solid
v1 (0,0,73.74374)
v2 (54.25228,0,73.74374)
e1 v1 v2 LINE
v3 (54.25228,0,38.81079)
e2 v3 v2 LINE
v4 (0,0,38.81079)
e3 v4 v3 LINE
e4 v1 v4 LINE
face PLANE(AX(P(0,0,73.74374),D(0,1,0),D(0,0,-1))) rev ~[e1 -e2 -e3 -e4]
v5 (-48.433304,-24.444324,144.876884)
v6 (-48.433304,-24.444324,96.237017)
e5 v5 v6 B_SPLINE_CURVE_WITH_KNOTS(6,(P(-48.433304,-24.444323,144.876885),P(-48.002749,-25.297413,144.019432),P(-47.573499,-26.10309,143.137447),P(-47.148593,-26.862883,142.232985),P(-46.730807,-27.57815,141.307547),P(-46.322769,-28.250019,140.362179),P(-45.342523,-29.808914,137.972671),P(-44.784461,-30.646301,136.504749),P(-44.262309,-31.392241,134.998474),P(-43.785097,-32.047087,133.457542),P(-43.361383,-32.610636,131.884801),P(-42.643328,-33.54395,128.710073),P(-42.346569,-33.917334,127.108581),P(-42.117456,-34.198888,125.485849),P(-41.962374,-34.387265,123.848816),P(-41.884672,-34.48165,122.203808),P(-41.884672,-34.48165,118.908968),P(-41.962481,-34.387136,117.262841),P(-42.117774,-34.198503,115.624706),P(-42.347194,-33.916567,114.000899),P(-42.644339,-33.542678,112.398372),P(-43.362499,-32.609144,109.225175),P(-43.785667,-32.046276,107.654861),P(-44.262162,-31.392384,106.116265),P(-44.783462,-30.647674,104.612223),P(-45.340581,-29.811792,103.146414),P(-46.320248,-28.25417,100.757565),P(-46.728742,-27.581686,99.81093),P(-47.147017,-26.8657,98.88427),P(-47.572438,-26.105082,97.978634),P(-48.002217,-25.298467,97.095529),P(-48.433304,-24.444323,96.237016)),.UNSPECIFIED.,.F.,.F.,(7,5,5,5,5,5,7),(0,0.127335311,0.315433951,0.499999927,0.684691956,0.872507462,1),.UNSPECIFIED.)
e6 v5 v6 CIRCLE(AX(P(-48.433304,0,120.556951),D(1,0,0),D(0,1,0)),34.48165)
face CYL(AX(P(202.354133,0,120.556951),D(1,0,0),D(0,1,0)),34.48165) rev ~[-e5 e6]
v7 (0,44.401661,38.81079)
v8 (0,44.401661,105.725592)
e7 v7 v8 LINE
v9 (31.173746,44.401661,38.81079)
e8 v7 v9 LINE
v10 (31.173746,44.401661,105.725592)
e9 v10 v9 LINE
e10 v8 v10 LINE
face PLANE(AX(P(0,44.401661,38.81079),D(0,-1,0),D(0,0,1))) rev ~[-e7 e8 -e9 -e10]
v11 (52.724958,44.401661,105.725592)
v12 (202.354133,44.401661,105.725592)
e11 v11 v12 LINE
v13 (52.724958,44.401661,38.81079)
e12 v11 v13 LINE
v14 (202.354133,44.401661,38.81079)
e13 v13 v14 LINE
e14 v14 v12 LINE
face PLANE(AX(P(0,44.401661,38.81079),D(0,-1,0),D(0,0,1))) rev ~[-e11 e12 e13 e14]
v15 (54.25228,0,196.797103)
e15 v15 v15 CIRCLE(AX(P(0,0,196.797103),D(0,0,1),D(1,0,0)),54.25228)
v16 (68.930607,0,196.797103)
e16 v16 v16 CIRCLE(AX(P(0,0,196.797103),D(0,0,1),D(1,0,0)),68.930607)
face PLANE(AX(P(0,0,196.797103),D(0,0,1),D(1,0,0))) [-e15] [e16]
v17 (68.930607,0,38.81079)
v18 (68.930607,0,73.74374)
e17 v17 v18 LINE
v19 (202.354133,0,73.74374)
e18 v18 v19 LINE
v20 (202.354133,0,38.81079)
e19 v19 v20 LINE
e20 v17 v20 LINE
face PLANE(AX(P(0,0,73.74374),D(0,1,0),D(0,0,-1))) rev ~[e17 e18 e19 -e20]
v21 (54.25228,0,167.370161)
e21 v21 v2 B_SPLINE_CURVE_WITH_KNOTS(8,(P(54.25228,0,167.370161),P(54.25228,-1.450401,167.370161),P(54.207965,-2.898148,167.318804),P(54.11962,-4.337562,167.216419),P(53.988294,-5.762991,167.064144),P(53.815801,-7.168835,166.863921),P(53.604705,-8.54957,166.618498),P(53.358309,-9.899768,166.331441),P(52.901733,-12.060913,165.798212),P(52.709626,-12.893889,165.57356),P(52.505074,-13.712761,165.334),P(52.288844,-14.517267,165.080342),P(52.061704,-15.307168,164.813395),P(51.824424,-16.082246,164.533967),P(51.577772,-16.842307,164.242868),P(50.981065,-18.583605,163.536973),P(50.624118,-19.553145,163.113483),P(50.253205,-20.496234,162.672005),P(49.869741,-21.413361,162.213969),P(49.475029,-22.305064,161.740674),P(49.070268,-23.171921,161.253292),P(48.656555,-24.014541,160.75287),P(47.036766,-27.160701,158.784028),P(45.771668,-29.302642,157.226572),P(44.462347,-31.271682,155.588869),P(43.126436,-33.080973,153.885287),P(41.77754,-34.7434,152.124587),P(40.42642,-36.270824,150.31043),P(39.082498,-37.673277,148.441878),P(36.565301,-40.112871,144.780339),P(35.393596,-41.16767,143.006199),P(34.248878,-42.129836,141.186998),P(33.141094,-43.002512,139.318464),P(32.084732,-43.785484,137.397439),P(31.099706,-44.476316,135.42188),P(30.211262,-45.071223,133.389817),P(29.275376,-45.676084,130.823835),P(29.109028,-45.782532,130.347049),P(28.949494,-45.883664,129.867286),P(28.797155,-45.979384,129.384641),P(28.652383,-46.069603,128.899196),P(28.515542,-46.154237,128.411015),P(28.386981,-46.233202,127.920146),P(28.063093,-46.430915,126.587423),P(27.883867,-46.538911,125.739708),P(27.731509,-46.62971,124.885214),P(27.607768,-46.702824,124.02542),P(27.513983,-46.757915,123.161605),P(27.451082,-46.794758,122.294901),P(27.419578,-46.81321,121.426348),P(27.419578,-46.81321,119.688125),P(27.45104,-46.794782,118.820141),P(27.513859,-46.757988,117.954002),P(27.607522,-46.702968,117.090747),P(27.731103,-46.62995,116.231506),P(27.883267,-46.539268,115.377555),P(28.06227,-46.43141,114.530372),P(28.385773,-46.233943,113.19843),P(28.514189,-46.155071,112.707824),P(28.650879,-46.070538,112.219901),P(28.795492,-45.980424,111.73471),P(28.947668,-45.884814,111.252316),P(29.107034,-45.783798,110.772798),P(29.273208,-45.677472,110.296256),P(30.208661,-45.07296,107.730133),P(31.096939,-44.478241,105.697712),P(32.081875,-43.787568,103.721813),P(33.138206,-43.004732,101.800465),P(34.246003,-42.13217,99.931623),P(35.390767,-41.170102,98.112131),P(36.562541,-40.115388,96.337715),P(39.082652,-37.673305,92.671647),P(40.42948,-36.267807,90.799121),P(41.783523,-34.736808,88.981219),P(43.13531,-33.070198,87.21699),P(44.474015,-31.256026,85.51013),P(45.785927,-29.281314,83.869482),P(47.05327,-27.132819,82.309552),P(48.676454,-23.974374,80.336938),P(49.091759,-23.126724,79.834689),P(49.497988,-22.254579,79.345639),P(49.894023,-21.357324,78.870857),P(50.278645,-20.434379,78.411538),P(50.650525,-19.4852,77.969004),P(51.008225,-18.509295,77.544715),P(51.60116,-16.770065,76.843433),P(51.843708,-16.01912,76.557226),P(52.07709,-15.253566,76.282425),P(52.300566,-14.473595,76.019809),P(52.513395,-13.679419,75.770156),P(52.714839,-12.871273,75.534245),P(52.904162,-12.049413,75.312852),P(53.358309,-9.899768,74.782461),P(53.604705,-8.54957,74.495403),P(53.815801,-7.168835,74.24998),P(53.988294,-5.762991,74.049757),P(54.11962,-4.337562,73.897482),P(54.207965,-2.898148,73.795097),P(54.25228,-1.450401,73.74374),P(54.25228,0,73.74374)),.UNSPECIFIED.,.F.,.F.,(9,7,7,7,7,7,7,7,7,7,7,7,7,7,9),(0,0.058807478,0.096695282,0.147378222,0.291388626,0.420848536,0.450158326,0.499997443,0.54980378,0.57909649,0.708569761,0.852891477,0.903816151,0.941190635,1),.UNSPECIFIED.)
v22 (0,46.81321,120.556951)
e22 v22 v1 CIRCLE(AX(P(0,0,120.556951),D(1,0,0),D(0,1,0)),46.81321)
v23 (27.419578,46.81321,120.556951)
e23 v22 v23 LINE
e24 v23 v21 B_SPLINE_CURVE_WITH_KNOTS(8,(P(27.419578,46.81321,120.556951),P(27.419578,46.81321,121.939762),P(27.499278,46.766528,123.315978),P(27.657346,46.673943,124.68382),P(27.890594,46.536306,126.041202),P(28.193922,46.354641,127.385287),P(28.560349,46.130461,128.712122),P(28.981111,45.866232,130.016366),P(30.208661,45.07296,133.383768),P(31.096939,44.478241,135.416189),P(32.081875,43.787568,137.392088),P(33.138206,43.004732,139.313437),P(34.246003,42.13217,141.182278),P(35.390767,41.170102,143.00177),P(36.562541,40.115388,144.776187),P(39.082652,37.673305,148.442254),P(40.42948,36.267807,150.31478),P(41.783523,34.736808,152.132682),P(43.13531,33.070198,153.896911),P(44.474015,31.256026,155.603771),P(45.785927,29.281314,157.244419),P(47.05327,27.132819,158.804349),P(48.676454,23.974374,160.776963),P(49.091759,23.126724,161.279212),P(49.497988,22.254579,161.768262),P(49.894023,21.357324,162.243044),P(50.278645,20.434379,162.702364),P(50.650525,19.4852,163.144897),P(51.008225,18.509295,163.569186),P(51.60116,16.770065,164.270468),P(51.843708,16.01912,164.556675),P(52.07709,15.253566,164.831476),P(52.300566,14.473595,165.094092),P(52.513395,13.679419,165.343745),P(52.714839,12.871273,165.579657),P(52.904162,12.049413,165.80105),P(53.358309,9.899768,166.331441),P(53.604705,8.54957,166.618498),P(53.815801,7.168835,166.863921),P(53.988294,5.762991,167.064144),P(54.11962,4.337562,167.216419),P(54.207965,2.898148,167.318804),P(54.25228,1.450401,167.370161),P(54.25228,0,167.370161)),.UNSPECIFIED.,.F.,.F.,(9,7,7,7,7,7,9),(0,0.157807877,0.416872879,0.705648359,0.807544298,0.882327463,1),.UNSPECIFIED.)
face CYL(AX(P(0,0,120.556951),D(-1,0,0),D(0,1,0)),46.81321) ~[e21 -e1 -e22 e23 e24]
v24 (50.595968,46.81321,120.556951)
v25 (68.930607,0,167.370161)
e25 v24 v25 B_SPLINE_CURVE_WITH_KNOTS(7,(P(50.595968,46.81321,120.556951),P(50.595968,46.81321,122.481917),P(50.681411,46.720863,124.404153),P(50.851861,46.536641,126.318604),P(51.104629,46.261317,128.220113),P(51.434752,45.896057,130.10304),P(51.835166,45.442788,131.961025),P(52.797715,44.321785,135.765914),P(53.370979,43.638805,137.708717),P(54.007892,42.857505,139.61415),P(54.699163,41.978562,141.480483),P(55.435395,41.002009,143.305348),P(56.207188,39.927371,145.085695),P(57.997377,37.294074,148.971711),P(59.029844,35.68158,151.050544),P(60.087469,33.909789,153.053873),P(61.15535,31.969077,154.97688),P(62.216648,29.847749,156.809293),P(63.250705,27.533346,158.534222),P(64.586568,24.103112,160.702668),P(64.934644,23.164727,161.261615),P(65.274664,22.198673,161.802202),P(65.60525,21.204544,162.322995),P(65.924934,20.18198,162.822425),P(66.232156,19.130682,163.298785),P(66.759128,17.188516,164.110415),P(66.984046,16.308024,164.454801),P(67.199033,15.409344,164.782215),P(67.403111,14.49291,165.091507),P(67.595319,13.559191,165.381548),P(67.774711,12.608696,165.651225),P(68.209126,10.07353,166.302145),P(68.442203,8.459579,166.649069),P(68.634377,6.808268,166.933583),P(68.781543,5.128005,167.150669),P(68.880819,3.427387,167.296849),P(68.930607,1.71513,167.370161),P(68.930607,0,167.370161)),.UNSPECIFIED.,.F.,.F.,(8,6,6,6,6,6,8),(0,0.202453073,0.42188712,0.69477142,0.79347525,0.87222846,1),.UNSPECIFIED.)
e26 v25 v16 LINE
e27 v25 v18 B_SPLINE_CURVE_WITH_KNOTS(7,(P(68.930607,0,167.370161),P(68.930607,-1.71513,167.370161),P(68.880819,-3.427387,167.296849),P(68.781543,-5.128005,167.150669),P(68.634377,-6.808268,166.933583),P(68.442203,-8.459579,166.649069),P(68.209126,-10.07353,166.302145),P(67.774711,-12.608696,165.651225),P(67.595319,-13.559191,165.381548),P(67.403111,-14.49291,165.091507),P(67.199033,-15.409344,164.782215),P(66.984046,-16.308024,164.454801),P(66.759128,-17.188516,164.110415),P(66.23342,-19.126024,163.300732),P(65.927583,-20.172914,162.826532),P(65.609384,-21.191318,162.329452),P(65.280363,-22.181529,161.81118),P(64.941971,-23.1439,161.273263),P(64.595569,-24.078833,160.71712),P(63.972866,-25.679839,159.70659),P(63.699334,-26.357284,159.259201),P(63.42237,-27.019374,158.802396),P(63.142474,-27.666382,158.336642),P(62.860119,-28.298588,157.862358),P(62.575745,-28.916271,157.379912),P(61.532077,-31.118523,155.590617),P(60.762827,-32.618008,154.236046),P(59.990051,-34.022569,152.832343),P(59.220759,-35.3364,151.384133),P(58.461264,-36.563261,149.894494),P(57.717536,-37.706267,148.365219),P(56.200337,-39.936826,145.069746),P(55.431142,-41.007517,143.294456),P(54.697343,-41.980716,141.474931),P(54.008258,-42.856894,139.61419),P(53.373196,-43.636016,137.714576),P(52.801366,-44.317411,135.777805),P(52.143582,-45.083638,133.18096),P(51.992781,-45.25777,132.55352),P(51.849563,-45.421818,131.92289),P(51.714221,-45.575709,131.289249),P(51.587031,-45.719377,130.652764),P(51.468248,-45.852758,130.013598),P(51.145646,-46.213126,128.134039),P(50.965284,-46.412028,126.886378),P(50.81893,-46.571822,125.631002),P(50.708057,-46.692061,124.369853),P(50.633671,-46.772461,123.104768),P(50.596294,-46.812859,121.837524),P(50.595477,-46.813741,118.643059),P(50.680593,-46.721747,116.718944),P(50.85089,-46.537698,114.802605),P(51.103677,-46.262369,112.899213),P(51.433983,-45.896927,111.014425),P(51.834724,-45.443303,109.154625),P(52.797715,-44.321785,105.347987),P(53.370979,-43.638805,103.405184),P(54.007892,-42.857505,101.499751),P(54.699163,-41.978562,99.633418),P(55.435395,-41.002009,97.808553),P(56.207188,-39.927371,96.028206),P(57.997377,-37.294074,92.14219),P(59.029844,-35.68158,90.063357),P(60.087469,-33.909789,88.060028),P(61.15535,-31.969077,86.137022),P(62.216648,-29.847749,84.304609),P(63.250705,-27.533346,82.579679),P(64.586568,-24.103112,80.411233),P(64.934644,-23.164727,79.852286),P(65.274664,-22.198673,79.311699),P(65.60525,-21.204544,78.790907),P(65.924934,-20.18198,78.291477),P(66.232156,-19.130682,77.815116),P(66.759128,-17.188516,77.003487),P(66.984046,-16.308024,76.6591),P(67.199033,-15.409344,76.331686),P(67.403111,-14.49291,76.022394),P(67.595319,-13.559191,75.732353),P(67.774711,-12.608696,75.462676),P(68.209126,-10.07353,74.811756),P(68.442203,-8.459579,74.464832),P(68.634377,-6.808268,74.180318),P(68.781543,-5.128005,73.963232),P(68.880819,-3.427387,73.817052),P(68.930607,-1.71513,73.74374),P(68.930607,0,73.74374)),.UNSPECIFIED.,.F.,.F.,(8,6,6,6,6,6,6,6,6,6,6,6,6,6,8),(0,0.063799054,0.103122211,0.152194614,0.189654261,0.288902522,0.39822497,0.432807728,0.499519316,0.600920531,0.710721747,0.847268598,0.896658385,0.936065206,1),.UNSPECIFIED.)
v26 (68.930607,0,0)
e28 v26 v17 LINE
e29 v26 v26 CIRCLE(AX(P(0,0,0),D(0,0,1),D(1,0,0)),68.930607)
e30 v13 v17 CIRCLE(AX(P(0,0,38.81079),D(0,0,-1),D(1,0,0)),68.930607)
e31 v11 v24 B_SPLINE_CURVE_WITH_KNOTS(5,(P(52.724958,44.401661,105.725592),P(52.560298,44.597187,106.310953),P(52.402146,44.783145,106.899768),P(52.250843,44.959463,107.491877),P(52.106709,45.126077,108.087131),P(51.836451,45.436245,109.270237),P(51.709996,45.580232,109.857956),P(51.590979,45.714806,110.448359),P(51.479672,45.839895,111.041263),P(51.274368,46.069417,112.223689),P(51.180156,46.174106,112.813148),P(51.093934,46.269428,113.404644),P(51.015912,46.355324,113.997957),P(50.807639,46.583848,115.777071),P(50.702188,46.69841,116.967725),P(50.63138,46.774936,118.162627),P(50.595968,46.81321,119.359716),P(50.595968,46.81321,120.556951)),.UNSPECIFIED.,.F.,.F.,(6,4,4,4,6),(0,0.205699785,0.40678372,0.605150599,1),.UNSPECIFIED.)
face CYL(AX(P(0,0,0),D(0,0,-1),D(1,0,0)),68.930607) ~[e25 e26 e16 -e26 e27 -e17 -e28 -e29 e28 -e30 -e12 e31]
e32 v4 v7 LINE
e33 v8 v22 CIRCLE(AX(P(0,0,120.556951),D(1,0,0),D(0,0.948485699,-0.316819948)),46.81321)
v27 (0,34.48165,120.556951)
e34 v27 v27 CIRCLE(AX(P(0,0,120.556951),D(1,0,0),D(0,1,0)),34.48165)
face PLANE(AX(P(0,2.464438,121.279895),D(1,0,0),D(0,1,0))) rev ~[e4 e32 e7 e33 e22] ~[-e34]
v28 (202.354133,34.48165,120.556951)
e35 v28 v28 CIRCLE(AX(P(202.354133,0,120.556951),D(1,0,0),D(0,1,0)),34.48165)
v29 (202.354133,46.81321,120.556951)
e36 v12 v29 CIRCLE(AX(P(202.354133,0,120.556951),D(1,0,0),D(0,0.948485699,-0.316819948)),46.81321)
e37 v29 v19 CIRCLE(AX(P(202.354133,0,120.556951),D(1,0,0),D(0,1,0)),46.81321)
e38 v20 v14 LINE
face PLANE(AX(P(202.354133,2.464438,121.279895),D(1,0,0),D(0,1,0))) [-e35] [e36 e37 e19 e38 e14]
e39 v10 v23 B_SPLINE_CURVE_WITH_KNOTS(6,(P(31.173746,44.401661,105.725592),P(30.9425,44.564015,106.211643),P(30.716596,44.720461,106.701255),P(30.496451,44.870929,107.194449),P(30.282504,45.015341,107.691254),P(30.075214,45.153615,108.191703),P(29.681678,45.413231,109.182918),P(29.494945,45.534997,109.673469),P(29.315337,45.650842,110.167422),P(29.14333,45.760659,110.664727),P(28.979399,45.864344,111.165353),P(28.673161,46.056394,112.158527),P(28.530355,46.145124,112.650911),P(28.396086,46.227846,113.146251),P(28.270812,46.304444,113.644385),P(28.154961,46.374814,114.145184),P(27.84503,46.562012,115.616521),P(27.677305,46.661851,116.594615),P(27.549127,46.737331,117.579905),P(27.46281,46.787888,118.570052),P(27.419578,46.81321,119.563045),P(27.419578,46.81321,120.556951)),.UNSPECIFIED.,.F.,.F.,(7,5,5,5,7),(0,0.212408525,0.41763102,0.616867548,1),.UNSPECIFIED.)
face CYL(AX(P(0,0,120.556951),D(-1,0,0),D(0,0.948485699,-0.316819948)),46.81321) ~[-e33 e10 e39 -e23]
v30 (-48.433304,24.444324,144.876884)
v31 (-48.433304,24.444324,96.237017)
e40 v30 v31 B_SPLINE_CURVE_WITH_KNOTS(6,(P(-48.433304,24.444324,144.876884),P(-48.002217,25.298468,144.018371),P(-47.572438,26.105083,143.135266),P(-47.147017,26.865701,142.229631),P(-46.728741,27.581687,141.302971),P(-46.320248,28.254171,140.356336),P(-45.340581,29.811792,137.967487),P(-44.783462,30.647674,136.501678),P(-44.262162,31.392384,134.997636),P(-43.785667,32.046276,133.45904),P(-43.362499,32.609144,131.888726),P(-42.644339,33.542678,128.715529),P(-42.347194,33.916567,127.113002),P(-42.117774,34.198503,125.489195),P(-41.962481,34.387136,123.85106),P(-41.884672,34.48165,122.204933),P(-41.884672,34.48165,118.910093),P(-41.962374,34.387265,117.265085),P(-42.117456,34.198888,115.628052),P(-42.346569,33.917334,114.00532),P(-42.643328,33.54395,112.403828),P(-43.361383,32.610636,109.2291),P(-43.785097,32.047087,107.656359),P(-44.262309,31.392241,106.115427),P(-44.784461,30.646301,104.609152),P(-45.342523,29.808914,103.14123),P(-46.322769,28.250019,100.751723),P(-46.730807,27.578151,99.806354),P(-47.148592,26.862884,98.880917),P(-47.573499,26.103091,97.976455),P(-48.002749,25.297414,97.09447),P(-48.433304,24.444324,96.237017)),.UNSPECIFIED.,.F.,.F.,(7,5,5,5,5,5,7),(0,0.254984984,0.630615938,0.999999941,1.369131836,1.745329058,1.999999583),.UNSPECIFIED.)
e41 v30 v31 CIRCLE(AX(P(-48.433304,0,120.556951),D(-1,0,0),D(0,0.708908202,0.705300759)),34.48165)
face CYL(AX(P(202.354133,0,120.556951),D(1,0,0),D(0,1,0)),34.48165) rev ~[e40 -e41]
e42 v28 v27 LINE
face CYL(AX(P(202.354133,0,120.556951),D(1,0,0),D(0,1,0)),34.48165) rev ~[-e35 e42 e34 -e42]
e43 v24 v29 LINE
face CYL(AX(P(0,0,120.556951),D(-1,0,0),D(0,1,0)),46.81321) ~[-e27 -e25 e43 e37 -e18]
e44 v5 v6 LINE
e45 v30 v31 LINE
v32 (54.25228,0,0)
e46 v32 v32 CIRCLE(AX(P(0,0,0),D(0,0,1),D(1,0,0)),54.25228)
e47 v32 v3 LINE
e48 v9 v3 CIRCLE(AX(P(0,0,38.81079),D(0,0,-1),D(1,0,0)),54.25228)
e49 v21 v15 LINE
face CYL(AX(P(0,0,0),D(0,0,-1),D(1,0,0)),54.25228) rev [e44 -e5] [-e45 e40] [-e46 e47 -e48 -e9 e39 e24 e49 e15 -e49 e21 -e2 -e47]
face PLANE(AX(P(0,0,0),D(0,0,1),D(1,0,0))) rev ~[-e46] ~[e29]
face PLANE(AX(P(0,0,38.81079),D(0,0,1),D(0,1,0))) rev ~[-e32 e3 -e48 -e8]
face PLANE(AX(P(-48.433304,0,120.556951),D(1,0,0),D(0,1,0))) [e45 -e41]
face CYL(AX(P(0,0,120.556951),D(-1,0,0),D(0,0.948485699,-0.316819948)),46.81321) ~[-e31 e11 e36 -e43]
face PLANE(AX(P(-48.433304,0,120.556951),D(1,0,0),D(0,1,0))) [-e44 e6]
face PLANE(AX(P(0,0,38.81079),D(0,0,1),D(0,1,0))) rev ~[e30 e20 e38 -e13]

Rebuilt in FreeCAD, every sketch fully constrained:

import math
import FreeCAD as App
import Part
import Sketcher
Q = App.Units.Quantity

doc = App.newDocument("Part")
params = doc.addObject("Spreadsheet::Sheet", "Params")
for row, (alias, value) in enumerate([
    ("pad1_length", "196.797103 mm"),
    ("pad2_length", "202.354133 mm"),
    ("pocket1_length", "250.787437 mm"),
], start=1):
    params.set(f"A{row}", alias)
    params.set(f"B{row}", "=" + value)
    params.setAlias(f"B{row}", alias)

body = doc.addObject("PartDesign::Body", "Body")

# Sketch on XY plane
sketch1 = body.newObject("Sketcher::SketchObject", "Sketch")
sketch1.AttachmentSupport = (doc.getObject("XY_Plane"), [""])
sketch1.MapMode = "FlatFace"
sketch1.addGeometry([
    Part.Circle(App.Vector(0, 0, 0), App.Vector(0, 0, 1), 69),
    Part.Circle(App.Vector(0, 0, 0), App.Vector(0, 0, 1), 54),
], False)
sketch1.addConstraint([
    Sketcher.Constraint("Coincident", 0, 3, -1, 1),
    Sketcher.Constraint("Coincident", 1, 3, -1, 1),
    Sketcher.Constraint("Diameter", 1, Q("108.50456 mm")),
    Sketcher.Constraint("Diameter", 0, Q("137.861215 mm")),
])
pad1 = body.newObject("PartDesign::Pad", "Pad")
pad1.Profile = sketch1
pad1.setExpression("Length", "Params.pad1_length")

# Sketch on YZ plane
sketch2 = body.newObject("Sketcher::SketchObject", "Sketch001")
sketch2.AttachmentSupport = (doc.getObject("YZ_Plane"), [""])
sketch2.MapMode = "FlatFace"
sketch2.addGeometry([
    Part.ArcOfCircle(Part.Circle(App.Vector(0, 121, 0), App.Vector(0, 0, 1), 47), math.radians(-18.47), math.radians(0)),  # 0
    Part.ArcOfCircle(Part.Circle(App.Vector(0, 121, 0), App.Vector(0, 0, 1), 47), math.radians(0), math.radians(270)),  # 1
    Part.LineSegment(App.Vector(0, 74, 0), App.Vector(0, 39, 0)),  # 2
    Part.LineSegment(App.Vector(0, 39, 0), App.Vector(44, 39, 0)),  # 3
    Part.LineSegment(App.Vector(44, 39, 0), App.Vector(44, 106, 0)),  # 4
], False)
sketch2.addConstraint([
    Sketcher.Constraint("Tangent", 0, 2, 1, 1),
    Sketcher.Constraint("Coincident", 1, 2, 2, 1),
    Sketcher.Constraint("Coincident", 2, 2, 3, 1),
    Sketcher.Constraint("Coincident", 3, 2, 4, 1),
    Sketcher.Constraint("Coincident", 4, 2, 0, 1),
    Sketcher.Constraint("Vertical", 2),
    Sketcher.Constraint("Horizontal", 3),
    Sketcher.Constraint("Vertical", 4),
    Sketcher.Constraint("Equal", 0, 1),
    Sketcher.Constraint("PointOnObject", 0, 3, -2),
    Sketcher.Constraint("PointOnObject", 1, 2, -2),
    Sketcher.Constraint("Horizontal", 1, 3, 0, 2),
    Sketcher.Constraint("Radius", 0, Q("46.81321 mm")),
    Sketcher.Constraint("DistanceX", 3, 1, 3, 2, Q("44.401661 mm")),
    Sketcher.Constraint("DistanceY", 2, 2, 2, 1, Q("34.932951 mm")),
    Sketcher.Constraint("DistanceY", -1, 1, 0, 3, Q("120.556951 mm")),
])
pad2 = body.newObject("PartDesign::Pad", "Pad001")
pad2.Profile = sketch2
pad2.setExpression("Length", "Params.pad2_length")

# Sketch on YZ plane
sketch3 = body.newObject("Sketcher::SketchObject", "Sketch002")
sketch3.AttachmentSupport = (doc.getObject("YZ_Plane"), [""])
sketch3.MapMode = "FlatFace"
sketch3.AttachmentOffset = App.Placement(App.Vector(0, 0, 202.354133), App.Rotation())
sketch3.addGeometry(Part.Circle(App.Vector(0, 121, 0), App.Vector(0, 0, 1), 34), False)
sketch3.addConstraint([
    Sketcher.Constraint("PointOnObject", 0, 3, -2),
    Sketcher.Constraint("Diameter", 0, Q("68.963299 mm")),
    Sketcher.Constraint("DistanceY", -1, 1, 0, 3, Q("120.556951 mm")),
])
pocket1 = body.newObject("PartDesign::Pocket", "Pocket")
pocket1.Profile = sketch3
pocket1.setExpression("Length", "Params.pocket1_length")

doc.recompute()
